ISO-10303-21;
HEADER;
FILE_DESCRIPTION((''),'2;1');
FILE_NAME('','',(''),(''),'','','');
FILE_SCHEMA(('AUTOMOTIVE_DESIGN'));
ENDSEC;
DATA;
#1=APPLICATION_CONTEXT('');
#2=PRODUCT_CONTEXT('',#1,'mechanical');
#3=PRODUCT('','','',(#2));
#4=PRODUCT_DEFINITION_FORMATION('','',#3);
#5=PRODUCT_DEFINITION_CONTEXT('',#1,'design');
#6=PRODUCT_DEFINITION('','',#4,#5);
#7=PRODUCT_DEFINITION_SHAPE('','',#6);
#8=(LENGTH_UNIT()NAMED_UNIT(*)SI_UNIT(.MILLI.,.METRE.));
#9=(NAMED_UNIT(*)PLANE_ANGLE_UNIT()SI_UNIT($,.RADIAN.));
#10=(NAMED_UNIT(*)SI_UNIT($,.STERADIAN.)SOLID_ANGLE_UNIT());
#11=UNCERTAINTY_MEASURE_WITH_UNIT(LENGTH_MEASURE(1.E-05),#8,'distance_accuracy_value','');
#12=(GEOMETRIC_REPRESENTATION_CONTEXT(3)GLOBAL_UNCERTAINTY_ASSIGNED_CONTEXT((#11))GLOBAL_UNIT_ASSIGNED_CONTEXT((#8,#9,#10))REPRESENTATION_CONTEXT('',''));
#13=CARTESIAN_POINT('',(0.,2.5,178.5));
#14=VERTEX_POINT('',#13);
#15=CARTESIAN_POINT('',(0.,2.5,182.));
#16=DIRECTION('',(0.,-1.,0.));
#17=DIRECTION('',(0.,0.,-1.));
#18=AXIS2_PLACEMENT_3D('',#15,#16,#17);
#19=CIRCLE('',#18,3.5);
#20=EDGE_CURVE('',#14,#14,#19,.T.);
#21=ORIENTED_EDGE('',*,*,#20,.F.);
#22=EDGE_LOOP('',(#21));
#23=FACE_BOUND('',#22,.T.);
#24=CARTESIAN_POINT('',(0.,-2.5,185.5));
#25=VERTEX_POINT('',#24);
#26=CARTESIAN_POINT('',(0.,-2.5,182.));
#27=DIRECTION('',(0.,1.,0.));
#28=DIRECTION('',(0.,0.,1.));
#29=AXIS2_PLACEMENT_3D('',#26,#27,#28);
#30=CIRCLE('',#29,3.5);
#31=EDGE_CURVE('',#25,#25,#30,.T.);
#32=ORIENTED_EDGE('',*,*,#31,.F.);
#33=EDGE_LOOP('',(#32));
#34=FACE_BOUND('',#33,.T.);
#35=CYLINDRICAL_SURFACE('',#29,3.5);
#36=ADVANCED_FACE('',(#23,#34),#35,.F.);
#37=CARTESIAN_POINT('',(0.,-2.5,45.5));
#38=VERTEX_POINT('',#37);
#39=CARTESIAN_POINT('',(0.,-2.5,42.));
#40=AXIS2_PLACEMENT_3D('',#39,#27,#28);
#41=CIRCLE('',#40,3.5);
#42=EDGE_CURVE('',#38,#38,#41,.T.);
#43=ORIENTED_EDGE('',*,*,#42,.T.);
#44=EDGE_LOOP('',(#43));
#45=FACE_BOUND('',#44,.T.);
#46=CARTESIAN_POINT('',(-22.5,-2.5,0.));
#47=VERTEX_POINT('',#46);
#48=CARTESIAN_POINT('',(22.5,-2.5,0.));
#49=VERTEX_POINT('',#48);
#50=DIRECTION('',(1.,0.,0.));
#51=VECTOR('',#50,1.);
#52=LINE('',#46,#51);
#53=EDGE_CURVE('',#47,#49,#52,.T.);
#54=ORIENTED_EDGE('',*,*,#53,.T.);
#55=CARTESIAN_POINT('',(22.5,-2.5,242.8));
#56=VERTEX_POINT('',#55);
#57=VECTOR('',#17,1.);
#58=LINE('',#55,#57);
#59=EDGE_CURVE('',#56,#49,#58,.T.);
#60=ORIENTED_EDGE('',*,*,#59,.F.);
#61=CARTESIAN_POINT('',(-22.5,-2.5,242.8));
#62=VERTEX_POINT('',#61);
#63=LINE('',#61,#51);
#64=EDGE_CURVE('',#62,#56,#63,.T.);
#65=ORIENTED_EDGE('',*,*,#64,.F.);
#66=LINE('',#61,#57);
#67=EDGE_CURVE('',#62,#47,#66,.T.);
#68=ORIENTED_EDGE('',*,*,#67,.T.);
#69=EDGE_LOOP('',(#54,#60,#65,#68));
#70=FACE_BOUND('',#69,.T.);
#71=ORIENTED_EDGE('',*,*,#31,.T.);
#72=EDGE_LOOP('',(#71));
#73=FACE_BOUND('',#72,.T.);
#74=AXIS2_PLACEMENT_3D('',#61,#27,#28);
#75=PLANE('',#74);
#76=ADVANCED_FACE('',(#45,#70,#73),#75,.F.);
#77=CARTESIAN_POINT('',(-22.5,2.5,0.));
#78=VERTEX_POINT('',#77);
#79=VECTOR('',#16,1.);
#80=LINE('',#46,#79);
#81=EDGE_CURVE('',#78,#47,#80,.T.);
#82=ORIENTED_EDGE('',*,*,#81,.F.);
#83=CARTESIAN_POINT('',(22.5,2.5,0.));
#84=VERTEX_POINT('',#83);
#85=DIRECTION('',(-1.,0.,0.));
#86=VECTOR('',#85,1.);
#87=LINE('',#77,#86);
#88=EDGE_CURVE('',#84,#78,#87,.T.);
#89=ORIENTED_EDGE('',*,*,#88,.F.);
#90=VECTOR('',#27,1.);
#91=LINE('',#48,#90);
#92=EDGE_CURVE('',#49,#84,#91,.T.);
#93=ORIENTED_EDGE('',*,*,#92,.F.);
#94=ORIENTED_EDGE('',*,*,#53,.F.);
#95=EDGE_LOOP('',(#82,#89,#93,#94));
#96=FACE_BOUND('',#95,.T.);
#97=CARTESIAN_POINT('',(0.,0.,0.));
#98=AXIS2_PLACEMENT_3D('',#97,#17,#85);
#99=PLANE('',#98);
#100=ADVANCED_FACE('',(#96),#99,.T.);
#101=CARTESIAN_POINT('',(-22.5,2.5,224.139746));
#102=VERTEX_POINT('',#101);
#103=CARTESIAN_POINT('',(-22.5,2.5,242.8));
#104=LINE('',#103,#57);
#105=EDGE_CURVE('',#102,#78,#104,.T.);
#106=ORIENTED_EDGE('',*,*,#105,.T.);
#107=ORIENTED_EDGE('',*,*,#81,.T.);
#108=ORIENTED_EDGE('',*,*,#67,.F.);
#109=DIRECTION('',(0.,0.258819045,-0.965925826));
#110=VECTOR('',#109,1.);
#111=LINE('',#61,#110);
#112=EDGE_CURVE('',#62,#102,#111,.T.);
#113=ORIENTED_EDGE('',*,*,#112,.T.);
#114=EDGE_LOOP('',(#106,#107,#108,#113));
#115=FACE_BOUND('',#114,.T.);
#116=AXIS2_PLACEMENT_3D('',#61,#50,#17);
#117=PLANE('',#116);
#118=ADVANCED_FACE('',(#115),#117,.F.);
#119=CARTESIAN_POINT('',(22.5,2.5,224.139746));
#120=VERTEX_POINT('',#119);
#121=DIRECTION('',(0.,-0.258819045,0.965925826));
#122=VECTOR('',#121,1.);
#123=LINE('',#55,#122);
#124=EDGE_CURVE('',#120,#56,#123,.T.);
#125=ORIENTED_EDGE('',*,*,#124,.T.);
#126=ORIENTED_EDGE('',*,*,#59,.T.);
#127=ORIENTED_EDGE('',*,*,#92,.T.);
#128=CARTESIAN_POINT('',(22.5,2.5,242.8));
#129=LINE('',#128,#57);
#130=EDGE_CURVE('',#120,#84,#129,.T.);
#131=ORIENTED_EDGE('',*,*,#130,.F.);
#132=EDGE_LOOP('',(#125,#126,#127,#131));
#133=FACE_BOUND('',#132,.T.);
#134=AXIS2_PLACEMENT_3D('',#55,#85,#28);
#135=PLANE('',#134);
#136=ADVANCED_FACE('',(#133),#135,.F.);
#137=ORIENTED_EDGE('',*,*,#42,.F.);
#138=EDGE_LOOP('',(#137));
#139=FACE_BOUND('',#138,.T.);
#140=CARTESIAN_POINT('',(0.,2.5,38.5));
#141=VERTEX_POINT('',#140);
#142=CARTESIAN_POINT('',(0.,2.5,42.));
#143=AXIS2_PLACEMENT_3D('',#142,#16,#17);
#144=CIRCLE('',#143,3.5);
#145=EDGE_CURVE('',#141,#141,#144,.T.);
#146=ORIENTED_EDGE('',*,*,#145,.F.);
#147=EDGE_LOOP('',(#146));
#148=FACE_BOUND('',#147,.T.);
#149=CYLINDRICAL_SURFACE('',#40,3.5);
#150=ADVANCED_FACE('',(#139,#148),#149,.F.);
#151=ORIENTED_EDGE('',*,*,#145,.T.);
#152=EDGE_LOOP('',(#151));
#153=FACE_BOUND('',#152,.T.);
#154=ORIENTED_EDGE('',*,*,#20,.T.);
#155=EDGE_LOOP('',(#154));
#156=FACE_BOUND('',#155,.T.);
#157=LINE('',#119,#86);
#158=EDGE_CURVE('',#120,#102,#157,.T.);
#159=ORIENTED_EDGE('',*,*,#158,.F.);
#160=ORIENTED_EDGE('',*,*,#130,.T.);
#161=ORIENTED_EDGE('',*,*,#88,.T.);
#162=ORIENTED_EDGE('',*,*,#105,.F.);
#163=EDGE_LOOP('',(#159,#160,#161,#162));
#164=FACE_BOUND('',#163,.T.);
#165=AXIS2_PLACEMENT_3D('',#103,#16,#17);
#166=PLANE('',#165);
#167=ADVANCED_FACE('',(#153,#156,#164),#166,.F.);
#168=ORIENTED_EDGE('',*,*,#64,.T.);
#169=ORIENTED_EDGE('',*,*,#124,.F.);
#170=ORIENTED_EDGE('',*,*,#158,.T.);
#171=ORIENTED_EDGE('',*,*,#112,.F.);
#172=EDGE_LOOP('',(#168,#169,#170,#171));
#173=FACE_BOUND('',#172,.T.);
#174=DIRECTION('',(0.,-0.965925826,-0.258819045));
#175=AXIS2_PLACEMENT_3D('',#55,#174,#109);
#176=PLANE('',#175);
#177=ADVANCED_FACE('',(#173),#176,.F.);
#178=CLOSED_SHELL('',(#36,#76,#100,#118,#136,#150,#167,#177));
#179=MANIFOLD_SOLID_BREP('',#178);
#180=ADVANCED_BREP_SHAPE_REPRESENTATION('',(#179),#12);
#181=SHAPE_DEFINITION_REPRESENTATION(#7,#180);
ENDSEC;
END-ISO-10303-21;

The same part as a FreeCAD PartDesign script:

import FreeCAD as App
import Part
import Sketcher
Q = App.Units.Quantity


def add_polygon(sketch, points):
    """Adds a closed chain of lines whose ends are joined by coincident constraints."""
    first, n = sketch.GeometryCount, len(points)
    for a, b in zip(points, points[1:] + points[:1]):
        sketch.addGeometry(Part.LineSegment(App.Vector(*a, 0), App.Vector(*b, 0)), False)
    for i in range(n):
        sketch.addConstraint(Sketcher.Constraint("Coincident", first + i, 2, first + (i + 1) % n, 1))

doc = App.newDocument("Part")
body = doc.addObject("PartDesign::Body", "Body")

sketch1 = body.newObject("Sketcher::SketchObject", "Sketch")
sketch1.AttachmentSupport = (doc.getObject("XY_Plane"), [""])
sketch1.MapMode = "FlatFace"
add_polygon(sketch1, [(-22.5, 2.5), (-22.5, -2.5), (22.5, -2.5), (22.5, 2.5)])
sketch1.addConstraint([
    Sketcher.Constraint("Vertical", 0),
    Sketcher.Constraint("Horizontal", 1),
    Sketcher.Constraint("Vertical", 2),
    Sketcher.Constraint("Horizontal", 3),
    Sketcher.Constraint("Symmetric", 0, 2, 2, 2, -1, 1),
    Sketcher.Constraint("DistanceX", 1, 1, 1, 2, 45.0),
    Sketcher.Constraint("DistanceY", 0, 2, 0, 1, 5.0),
])
pad1 = body.newObject("PartDesign::Pad", "Pad")
pad1.Profile = sketch1
pad1.Length = 242.8

sketch2 = body.newObject("Sketcher::SketchObject", "Sketch001")
sketch2.AttachmentSupport = (doc.getObject("XZ_Plane"), [""])
sketch2.MapMode = "FlatFace"
sketch2.AttachmentOffset = App.Placement(App.Vector(0, 0, -2.5), App.Rotation())
sketch2.addGeometry([
    Part.Circle(App.Vector(0, 42, 0), App.Vector(0, 0, 1), 3.5),
    Part.Circle(App.Vector(0, 182, 0), App.Vector(0, 0, 1), 3.5),
    Part.Circle(App.Vector(0, 322, 0), App.Vector(0, 0, 1), 3.5),
    Part.Circle(App.Vector(0, 462, 0), App.Vector(0, 0, 1), 3.5),
    Part.Circle(App.Vector(0, 602, 0), App.Vector(0, 0, 1), 3.5),
    Part.Circle(App.Vector(0, 742, 0), App.Vector(0, 0, 1), 3.5),
    Part.Circle(App.Vector(0, 882, 0), App.Vector(0, 0, 1), 3.5),
    Part.Circle(App.Vector(0, 1022, 0), App.Vector(0, 0, 1), 3.5),
    Part.Circle(App.Vector(0, 1162, 0), App.Vector(0, 0, 1), 3.5),
    Part.Circle(App.Vector(0, 1302, 0), App.Vector(0, 0, 1), 3.5),
], False)
sketch2.addConstraint([
    Sketcher.Constraint("Equal", 0, 1),
    Sketcher.Constraint("Equal", 1, 2),
    Sketcher.Constraint("Equal", 2, 3),
    Sketcher.Constraint("Equal", 3, 4),
    Sketcher.Constraint("Equal", 4, 5),
    Sketcher.Constraint("Equal", 5, 6),
    Sketcher.Constraint("Equal", 6, 7),
    Sketcher.Constraint("Equal", 7, 8),
    Sketcher.Constraint("Equal", 8, 9),
    Sketcher.Constraint("PointOnObject", 0, 3, -2),
    Sketcher.Constraint("PointOnObject", 1, 3, -2),
    Sketcher.Constraint("PointOnObject", 2, 3, -2),
    Sketcher.Constraint("PointOnObject", 3, 3, -2),
    Sketcher.Constraint("PointOnObject", 4, 3, -2),
    Sketcher.Constraint("PointOnObject", 5, 3, -2),
    Sketcher.Constraint("PointOnObject", 6, 3, -2),
    Sketcher.Constraint("PointOnObject", 7, 3, -2),
    Sketcher.Constraint("PointOnObject", 8, 3, -2),
    Sketcher.Constraint("PointOnObject", 9, 3, -2),
    Sketcher.Constraint("Diameter", 0, 7.0),
    Sketcher.Constraint("DistanceY", -1, 1, 0, 3, 42.0),
    Sketcher.Constraint("DistanceY", -1, 1, 1, 3, 182.0),
    Sketcher.Constraint("DistanceY", -1, 1, 2, 3, 322.0),
    Sketcher.Constraint("DistanceY", -1, 1, 3, 3, 462.0),
    Sketcher.Constraint("DistanceY", -1, 1, 4, 3, 602.0),
    Sketcher.Constraint("DistanceY", -1, 1, 5, 3, 742.0),
    Sketcher.Constraint("DistanceY", -1, 1, 6, 3, 882.0),
    Sketcher.Constraint("DistanceY", -1, 1, 7, 3, 1022.0),
    Sketcher.Constraint("DistanceY", -1, 1, 8, 3, 1162.0),
    Sketcher.Constraint("DistanceY", -1, 1, 9, 3, 1302.0),
])
pocket1 = body.newObject("PartDesign::Pocket", "Pocket")
pocket1.Profile = sketch2
pocket1.Type = "ThroughAll"
pocket1.Midplane = True

sketch3 = body.newObject("Sketcher::SketchObject", "Sketch002")
sketch3.AttachmentSupport = (doc.getObject("YZ_Plane"), [""])
sketch3.MapMode = "FlatFace"
sketch3.AttachmentOffset = App.Placement(App.Vector(0, 0, -22.5), App.Rotation())
add_polygon(sketch3, [(2.5, 224.139746), (-2.5, 242.8), (2.5, 242.8)])
sketch3.addConstraint([
    Sketcher.Constraint("Horizontal", 1),
    Sketcher.Constraint("Vertical", 2),
    Sketcher.Constraint("DistanceX", 1, 1, 1, 2, 5.0),
    Sketcher.Constraint("Angle", 0, Q("105 deg")),
    Sketcher.Constraint("DistanceX", 0, 2, -1, 1, 2.5),
    Sketcher.Constraint("DistanceY", -1, 1, 0, 2, 242.8),
])
pocket2 = body.newObject("PartDesign::Pocket", "Pocket001")
pocket2.Profile = sketch3
pocket2.Type = "ThroughAll"
pocket2.Midplane = True

doc.recompute()
